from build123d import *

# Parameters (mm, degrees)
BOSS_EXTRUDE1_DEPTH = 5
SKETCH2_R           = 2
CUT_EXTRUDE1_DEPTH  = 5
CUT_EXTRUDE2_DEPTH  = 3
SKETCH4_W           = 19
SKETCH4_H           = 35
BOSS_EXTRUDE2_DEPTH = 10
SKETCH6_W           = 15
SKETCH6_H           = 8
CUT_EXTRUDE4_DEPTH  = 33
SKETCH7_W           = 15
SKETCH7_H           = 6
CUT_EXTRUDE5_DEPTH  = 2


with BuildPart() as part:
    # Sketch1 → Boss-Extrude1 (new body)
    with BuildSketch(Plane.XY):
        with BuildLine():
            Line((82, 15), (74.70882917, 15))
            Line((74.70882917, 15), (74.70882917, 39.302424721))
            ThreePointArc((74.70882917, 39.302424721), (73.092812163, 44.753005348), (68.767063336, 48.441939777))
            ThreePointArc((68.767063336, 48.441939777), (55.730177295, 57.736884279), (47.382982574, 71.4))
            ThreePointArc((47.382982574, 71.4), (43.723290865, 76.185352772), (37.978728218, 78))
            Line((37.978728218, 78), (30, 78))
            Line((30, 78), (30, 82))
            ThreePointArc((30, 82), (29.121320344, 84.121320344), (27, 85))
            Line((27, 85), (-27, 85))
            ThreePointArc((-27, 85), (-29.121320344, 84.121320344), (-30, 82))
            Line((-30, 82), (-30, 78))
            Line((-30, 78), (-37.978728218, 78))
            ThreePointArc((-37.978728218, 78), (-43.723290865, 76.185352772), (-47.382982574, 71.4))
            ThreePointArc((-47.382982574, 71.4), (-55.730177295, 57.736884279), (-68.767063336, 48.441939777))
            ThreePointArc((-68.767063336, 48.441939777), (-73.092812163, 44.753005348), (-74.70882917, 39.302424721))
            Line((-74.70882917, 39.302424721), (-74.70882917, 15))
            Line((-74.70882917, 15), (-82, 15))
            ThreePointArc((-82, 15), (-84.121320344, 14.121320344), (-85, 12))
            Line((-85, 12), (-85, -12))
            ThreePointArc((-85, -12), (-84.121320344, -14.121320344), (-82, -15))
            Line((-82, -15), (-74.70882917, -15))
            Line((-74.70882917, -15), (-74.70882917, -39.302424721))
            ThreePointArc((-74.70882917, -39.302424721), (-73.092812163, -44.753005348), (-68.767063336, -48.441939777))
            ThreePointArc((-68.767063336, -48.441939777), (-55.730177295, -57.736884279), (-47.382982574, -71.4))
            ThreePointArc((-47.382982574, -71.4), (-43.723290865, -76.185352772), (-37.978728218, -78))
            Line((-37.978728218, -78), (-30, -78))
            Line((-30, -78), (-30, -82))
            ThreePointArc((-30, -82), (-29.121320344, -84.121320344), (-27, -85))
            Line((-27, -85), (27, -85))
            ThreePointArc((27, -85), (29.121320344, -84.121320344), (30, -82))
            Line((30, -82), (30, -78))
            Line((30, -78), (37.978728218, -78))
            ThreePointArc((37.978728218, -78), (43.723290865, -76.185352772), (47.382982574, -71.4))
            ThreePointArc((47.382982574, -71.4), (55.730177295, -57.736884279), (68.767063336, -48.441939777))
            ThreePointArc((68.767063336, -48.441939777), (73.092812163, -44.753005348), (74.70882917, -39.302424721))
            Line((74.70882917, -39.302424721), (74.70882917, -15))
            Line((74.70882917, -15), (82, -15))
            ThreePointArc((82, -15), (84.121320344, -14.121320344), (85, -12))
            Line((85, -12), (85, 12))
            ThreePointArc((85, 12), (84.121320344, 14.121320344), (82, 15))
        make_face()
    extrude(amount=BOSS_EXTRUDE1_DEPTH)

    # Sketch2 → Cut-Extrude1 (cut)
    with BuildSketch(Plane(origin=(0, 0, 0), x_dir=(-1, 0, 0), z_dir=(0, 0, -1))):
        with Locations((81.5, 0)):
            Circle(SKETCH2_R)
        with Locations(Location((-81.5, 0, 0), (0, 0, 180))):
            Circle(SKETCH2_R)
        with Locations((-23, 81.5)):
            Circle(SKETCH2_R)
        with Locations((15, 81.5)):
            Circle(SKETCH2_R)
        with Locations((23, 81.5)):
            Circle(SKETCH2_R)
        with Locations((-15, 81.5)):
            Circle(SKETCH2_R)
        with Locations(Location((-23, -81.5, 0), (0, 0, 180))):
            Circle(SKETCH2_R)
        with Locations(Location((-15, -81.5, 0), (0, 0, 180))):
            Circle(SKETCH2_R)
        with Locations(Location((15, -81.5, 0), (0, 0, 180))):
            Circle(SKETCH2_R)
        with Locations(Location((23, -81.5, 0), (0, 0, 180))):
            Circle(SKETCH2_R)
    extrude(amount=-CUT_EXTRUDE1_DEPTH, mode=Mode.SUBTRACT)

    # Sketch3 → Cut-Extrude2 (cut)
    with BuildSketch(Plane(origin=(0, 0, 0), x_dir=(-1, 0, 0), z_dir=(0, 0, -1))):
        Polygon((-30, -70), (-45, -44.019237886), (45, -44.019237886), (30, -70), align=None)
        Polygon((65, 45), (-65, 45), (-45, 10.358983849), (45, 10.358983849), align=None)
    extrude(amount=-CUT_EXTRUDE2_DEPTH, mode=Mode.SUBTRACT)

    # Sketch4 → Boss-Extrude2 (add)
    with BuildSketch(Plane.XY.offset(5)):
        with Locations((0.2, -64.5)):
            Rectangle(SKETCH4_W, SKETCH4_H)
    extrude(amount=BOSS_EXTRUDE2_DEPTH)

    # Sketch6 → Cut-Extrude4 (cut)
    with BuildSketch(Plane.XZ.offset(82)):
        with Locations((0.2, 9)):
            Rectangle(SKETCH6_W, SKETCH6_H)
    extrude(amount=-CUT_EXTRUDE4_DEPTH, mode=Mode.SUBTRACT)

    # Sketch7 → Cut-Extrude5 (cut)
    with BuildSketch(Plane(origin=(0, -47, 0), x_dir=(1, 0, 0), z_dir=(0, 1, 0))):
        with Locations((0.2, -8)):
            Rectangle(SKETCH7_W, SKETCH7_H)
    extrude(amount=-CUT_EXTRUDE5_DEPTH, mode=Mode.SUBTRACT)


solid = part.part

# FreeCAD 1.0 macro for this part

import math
import FreeCAD as App
import Part
import Sketcher
from FreeCAD import Vector
Q = App.Units.Quantity

doc = App.newDocument("Part")
body = doc.addObject("PartDesign::Body", "Body")

sketch1 = body.newObject("Sketcher::SketchObject", "Sketch")
sketch1.AttachmentSupport = (doc.getObject("XY_Plane"), [""])
sketch1.MapMode = "FlatFace"
sketch1.addGeometry([
    Part.LineSegment(Vector(82, 15, 0), Vector(74.7, 15, 0)),
    Part.LineSegment(Vector(74.7, 15, 0), Vector(74.7, 39.3, 0)),
    Part.ArcOfCircle(Part.Circle(Vector(64.7, 39.3, 0), Vector(0, 0, 1), 10), math.radians(0), math.radians(66)),
    Part.ArcOfCircle(Part.Circle(Vector(85, 85, 0), Vector(0, 0, 1), 40), math.radians(-160), math.radians(-114)),
    Part.ArcOfCircle(Part.Circle(Vector(38, 68, 0), Vector(0, 0, 1), 10), math.radians(20), math.radians(90)),
    Part.LineSegment(Vector(38, 78, 0), Vector(30, 78, 0)),
    Part.LineSegment(Vector(30, 78, 0), Vector(30, 82, 0)),
    Part.ArcOfCircle(Part.Circle(Vector(27, 82, 0), Vector(0, 0, 1), 3), math.radians(0), math.radians(90)),
    Part.LineSegment(Vector(27, 85, 0), Vector(-27, 85, 0)),
    Part.ArcOfCircle(Part.Circle(Vector(-27, 82, 0), Vector(0, 0, 1), 3), math.radians(90), math.radians(180)),
    Part.LineSegment(Vector(-30, 82, 0), Vector(-30, 78, 0)),
    Part.LineSegment(Vector(-30, 78, 0), Vector(-38, 78, 0)),
    Part.ArcOfCircle(Part.Circle(Vector(-38, 68, 0), Vector(0, 0, 1), 10), math.radians(90), math.radians(160)),
    Part.ArcOfCircle(Part.Circle(Vector(-85, 85, 0), Vector(0, 0, 1), 40), math.radians(-66), math.radians(-20)),
    Part.ArcOfCircle(Part.Circle(Vector(-64.7, 39.3, 0), Vector(0, 0, 1), 10), math.radians(114), math.radians(180)),
    Part.LineSegment(Vector(-74.7, 39.3, 0), Vector(-74.7, 15, 0)),
    Part.LineSegment(Vector(-74.7, 15, 0), Vector(-82, 15, 0)),
    Part.ArcOfCircle(Part.Circle(Vector(-82, 12, 0), Vector(0, 0, 1), 3), math.radians(90), math.radians(180)),
    Part.LineSegment(Vector(-85, 12, 0), Vector(-85, -12, 0)),
    Part.ArcOfCircle(Part.Circle(Vector(-82, -12, 0), Vector(0, 0, 1), 3), math.radians(180), math.radians(270)),
    Part.LineSegment(Vector(-82, -15, 0), Vector(-74.7, -15, 0)),
    Part.LineSegment(Vector(-74.7, -15, 0), Vector(-74.7, -39.3, 0)),
    Part.ArcOfCircle(Part.Circle(Vector(-64.7, -39.3, 0), Vector(0, 0, 1), 10), math.radians(-180), math.radians(-114)),
    Part.ArcOfCircle(Part.Circle(Vector(-85, -85, 0), Vector(0, 0, 1), 40), math.radians(20), math.radians(66)),
    Part.ArcOfCircle(Part.Circle(Vector(-38, -68, 0), Vector(0, 0, 1), 10), math.radians(-160), math.radians(-90)),
    Part.LineSegment(Vector(-38, -78, 0), Vector(-30, -78, 0)),
    Part.LineSegment(Vector(-30, -78, 0), Vector(-30, -82, 0)),
    Part.ArcOfCircle(Part.Circle(Vector(-27, -82, 0), Vector(0, 0, 1), 3), math.radians(180), math.radians(270)),
    Part.LineSegment(Vector(-27, -85, 0), Vector(27, -85, 0)),
    Part.ArcOfCircle(Part.Circle(Vector(27, -82, 0), Vector(0, 0, 1), 3), math.radians(-90), math.radians(0)),
    Part.LineSegment(Vector(30, -82, 0), Vector(30, -78, 0)),
    Part.LineSegment(Vector(30, -78, 0), Vector(38, -78, 0)),
    Part.ArcOfCircle(Part.Circle(Vector(38, -68, 0), Vector(0, 0, 1), 10), math.radians(-90), math.radians(-20)),
    Part.ArcOfCircle(Part.Circle(Vector(85, -85, 0), Vector(0, 0, 1), 40), math.radians(114), math.radians(160)),
    Part.ArcOfCircle(Part.Circle(Vector(64.7, -39.3, 0), Vector(0, 0, 1), 10), math.radians(-66), math.radians(0)),
    Part.LineSegment(Vector(74.7, -39.3, 0), Vector(74.7, -15, 0)),
    Part.LineSegment(Vector(74.7, -15, 0), Vector(82, -15, 0)),
    Part.ArcOfCircle(Part.Circle(Vector(82, -12, 0), Vector(0, 0, 1), 3), math.radians(-90), math.radians(0)),
    Part.LineSegment(Vector(85, -12, 0), Vector(85, 12, 0)),
    Part.ArcOfCircle(Part.Circle(Vector(82, 12, 0), Vector(0, 0, 1), 3), math.radians(0), math.radians(90)),
], False)
sketch1.addConstraint([
    Sketcher.Constraint("Coincident", 0, 2, 1, 1),
    Sketcher.Constraint("Tangent", 1, 2, 2, 1),
    Sketcher.Constraint("Tangent", 2, 2, 3, 2),
    Sketcher.Constraint("Tangent", 3, 1, 4, 1),
    Sketcher.Constraint("Tangent", 4, 2, 5, 1),
    Sketcher.Constraint("Coincident", 5, 2, 6, 1),
    Sketcher.Constraint("Tangent", 6, 2, 7, 1),
    Sketcher.Constraint("Tangent", 7, 2, 8, 1),
    Sketcher.Constraint("Tangent", 8, 2, 9, 1),
    Sketcher.Constraint("Tangent", 9, 2, 10, 1),
    Sketcher.Constraint("Coincident", 10, 2, 11, 1),
    Sketcher.Constraint("Tangent", 11, 2, 12, 1),
    Sketcher.Constraint("Tangent", 12, 2, 13, 2),
    Sketcher.Constraint("Tangent", 13, 1, 14, 1),
    Sketcher.Constraint("Tangent", 14, 2, 15, 1),
    Sketcher.Constraint("Coincident", 15, 2, 16, 1),
    Sketcher.Constraint("Tangent", 16, 2, 17, 1),
    Sketcher.Constraint("Tangent", 17, 2, 18, 1),
    Sketcher.Constraint("Tangent", 18, 2, 19, 1),
    Sketcher.Constraint("Tangent", 19, 2, 20, 1),
    Sketcher.Constraint("Coincident", 20, 2, 21, 1),
    Sketcher.Constraint("Tangent", 21, 2, 22, 1),
    Sketcher.Constraint("Tangent", 22, 2, 23, 2),
    Sketcher.Constraint("Tangent", 23, 1, 24, 1),
    Sketcher.Constraint("Tangent", 24, 2, 25, 1),
    Sketcher.Constraint("Coincident", 25, 2, 26, 1),
    Sketcher.Constraint("Tangent", 26, 2, 27, 1),
    Sketcher.Constraint("Tangent", 27, 2, 28, 1),
    Sketcher.Constraint("Tangent", 28, 2, 29, 1),
    Sketcher.Constraint("Tangent", 29, 2, 30, 1),
    Sketcher.Constraint("Coincident", 30, 2, 31, 1),
    Sketcher.Constraint("Tangent", 31, 2, 32, 1),
    Sketcher.Constraint("Tangent", 32, 2, 33, 2),
    Sketcher.Constraint("Tangent", 33, 1, 34, 1),
    Sketcher.Constraint("Tangent", 34, 2, 35, 1),
    Sketcher.Constraint("Coincident", 35, 2, 36, 1),
    Sketcher.Constraint("Tangent", 36, 2, 37, 1),
    Sketcher.Constraint("Tangent", 37, 2, 38, 1),
    Sketcher.Constraint("Tangent", 38, 2, 39, 1),
    Sketcher.Constraint("Tangent", 39, 2, 0, 1),
    Sketcher.Constraint("Horizontal", 0),
    Sketcher.Constraint("Vertical", 1),
    Sketcher.Constraint("Horizontal", 5),
    Sketcher.Constraint("Vertical", 6),
    Sketcher.Constraint("Horizontal", 8),
    Sketcher.Constraint("Vertical", 10),
    Sketcher.Constraint("Horizontal", 11),
    Sketcher.Constraint("Vertical", 15),
    Sketcher.Constraint("Horizontal", 16),
    Sketcher.Constraint("Vertical", 18),
    Sketcher.Constraint("Horizontal", 20),
    Sketcher.Constraint("Vertical", 21),
    Sketcher.Constraint("Horizontal", 25),
    Sketcher.Constraint("Vertical", 26),
    Sketcher.Constraint("Horizontal", 28),
    Sketcher.Constraint("Vertical", 30),
    Sketcher.Constraint("Horizontal", 31),
    Sketcher.Constraint("Vertical", 35),
    Sketcher.Constraint("Horizontal", 36),
    Sketcher.Constraint("Vertical", 38),
    Sketcher.Constraint("Equal", 2, 4),
    Sketcher.Constraint("Equal", 7, 9),
    Sketcher.Constraint("Equal", 4, 12),
    Sketcher.Constraint("Equal", 3, 13),
    Sketcher.Constraint("Equal", 12, 14),
    Sketcher.Constraint("Equal", 9, 17),
    Sketcher.Constraint("Equal", 17, 19),
    Sketcher.Constraint("Equal", 14, 22),
    Sketcher.Constraint("Equal", 13, 23),
    Sketcher.Constraint("Equal", 22, 24),
    Sketcher.Constraint("Equal", 19, 27),
    Sketcher.Constraint("Equal", 27, 29),
    Sketcher.Constraint("Equal", 24, 32),
    Sketcher.Constraint("Equal", 23, 33),
    Sketcher.Constraint("Equal", 32, 34),
    Sketcher.Constraint("Equal", 29, 37),
    Sketcher.Constraint("Equal", 37, 39),
    Sketcher.Constraint("Symmetric", 2, 3, 22, 3, -1, 1),
    Sketcher.Constraint("Symmetric", 4, 3, 24, 3, -1, 1),
    Sketcher.Constraint("Symmetric", 7, 3, 27, 3, -1, 1),
    Sketcher.Constraint("Symmetric", 12, 3, 32, 3, -1, 1),
    Sketcher.Constraint("Symmetric", 14, 3, 34, 3, -1, 1),
    Sketcher.Constraint("Symmetric", 17, 3, 37, 3, -1, 1),
    Sketcher.Constraint("Symmetric", 4, 3, 12, 3, -2),
    Sketcher.Constraint("Symmetric", 2, 3, 14, 3, -2),
    Sketcher.Constraint("Horizontal", 19, 3, 37, 3),
    Sketcher.Constraint("Horizontal", 17, 3, 39, 3),
    Sketcher.Constraint("Horizontal", 13, 3, 7, 2),
    Sketcher.Constraint("Vertical", 9, 3, 27, 3),
    Sketcher.Constraint("Vertical", 7, 3, 29, 3),
    Sketcher.Constraint("Vertical", 23, 3, 17, 2),
    Sketcher.Constraint("Radius", 2, 10.0),
    Sketcher.Constraint("Radius", 3, 40.0),
    Sketcher.Constraint("Radius", 7, 3.0),
    Sketcher.Constraint("DistanceX", 8, 2, 8, 1, 54.0),
    Sketcher.Constraint("DistanceY", 6, 1, 6, 2, 4.0),
    Sketcher.Constraint("DistanceY", 18, 2, 18, 1, 24.0),
    Sketcher.Constraint("DistanceX", -1, 1, 3, 3, 85.0),
    Sketcher.Constraint("DistanceY", -1, 1, 3, 3, 85.0),
    Sketcher.Constraint("DistanceX", 0, 2, 0, 1, 7.291171),
])
pad1 = body.newObject("PartDesign::Pad", "Pad")
pad1.Profile = sketch1
pad1.Length = 5

sketch2 = body.newObject("Sketcher::SketchObject", "Sketch001")
sketch2.AttachmentSupport = (doc.getObject("XY_Plane"), [""])
sketch2.MapMode = "FlatFace"
sketch2.addGeometry([
    Part.Circle(Vector(-81.5, 0, 0), Vector(0, 0, 1), 2),
    Part.Circle(Vector(81.5, 0, 0), Vector(0, 0, 1), 2),
    Part.Circle(Vector(23, 81.5, 0), Vector(0, 0, 1), 2),
    Part.Circle(Vector(-15, 81.5, 0), Vector(0, 0, 1), 2),
    Part.Circle(Vector(-23, 81.5, 0), Vector(0, 0, 1), 2),
    Part.Circle(Vector(15, 81.5, 0), Vector(0, 0, 1), 2),
    Part.Circle(Vector(23, -81.5, 0), Vector(0, 0, 1), 2),
    Part.Circle(Vector(15, -81.5, 0), Vector(0, 0, 1), 2),
    Part.Circle(Vector(-15, -81.5, 0), Vector(0, 0, 1), 2),
    Part.Circle(Vector(-23, -81.5, 0), Vector(0, 0, 1), 2),
], False)
sketch2.addConstraint([
    Sketcher.Constraint("Equal", 0, 1),
    Sketcher.Constraint("Equal", 1, 2),
    Sketcher.Constraint("Equal", 2, 3),
    Sketcher.Constraint("Equal", 3, 4),
    Sketcher.Constraint("Equal", 4, 5),
    Sketcher.Constraint("Equal", 5, 6),
    Sketcher.Constraint("Equal", 6, 7),
    Sketcher.Constraint("Equal", 7, 8),
    Sketcher.Constraint("Equal", 8, 9),
    Sketcher.Constraint("Symmetric", 0, 3, 1, 3, -1, 1),
    Sketcher.Constraint("Symmetric", 4, 3, 6, 3, -1, 1),
    Sketcher.Constraint("Symmetric", 3, 3, 7, 3, -1, 1),
    Sketcher.Constraint("Symmetric", 5, 3, 8, 3, -1, 1),
    Sketcher.Constraint("Symmetric", 2, 3, 9, 3, -1, 1),
    Sketcher.Constraint("Symmetric", 2, 3, 4, 3, -2),
    Sketcher.Constraint("Symmetric", 3, 3, 5, 3, -2),
    Sketcher.Constraint("PointOnObject", 0, 3, -1),
    Sketcher.Constraint("Horizontal", 2, 3, 3, 3),
    Sketcher.Constraint("Diameter", 0, 4.0),
    Sketcher.Constraint("DistanceX", -1, 1, 2, 3, 23.0),
    Sketcher.Constraint("DistanceX", 3, 3, -1, 1, 15.0),
    Sketcher.Constraint("DistanceX", 0, 3, 1, 3, 163.0),
    Sketcher.Constraint("DistanceY", 6, 3, 2, 3, 163.0),
])
pocket1 = body.newObject("PartDesign::Pocket", "Pocket")
pocket1.Profile = sketch2
pocket1.Length = 5
pocket1.Reversed = True

sketch3 = body.newObject("Sketcher::SketchObject", "Sketch002")
sketch3.AttachmentSupport = (doc.getObject("XY_Plane"), [""])
sketch3.MapMode = "FlatFace"
sketch3.addGeometry([
    Part.LineSegment(Vector(45, -44, 0), Vector(30, -70, 0)),
    Part.LineSegment(Vector(30, -70, 0), Vector(-30, -70, 0)),
    Part.LineSegment(Vector(-30, -70, 0), Vector(-45, -44, 0)),
    Part.LineSegment(Vector(-45, -44, 0), Vector(45, -44, 0)),
    Part.LineSegment(Vector(-65, 45, 0), Vector(65, 45, 0)),
    Part.LineSegment(Vector(65, 45, 0), Vector(45, 10, 0)),
    Part.LineSegment(Vector(45, 10, 0), Vector(-45, 10, 0)),
    Part.LineSegment(Vector(-45, 10, 0), Vector(-65, 45, 0)),
], False)
sketch3.addConstraint([
    Sketcher.Constraint("Coincident", 0, 2, 1, 1),
    Sketcher.Constraint("Coincident", 1, 2, 2, 1),
    Sketcher.Constraint("Coincident", 2, 2, 3, 1),
    Sketcher.Constraint("Coincident", 3, 2, 0, 1),
    Sketcher.Constraint("Coincident", 4, 2, 5, 1),
    Sketcher.Constraint("Coincident", 5, 2, 6, 1),
    Sketcher.Constraint("Coincident", 6, 2, 7, 1),
    Sketcher.Constraint("Coincident", 7, 2, 4, 1),
    Sketcher.Constraint("Horizontal", 1),
    Sketcher.Constraint("Horizontal", 3),
    Sketcher.Constraint("Horizontal", 4),
    Sketcher.Constraint("Horizontal", 6),
    Sketcher.Constraint("Parallel", 0, 5),
    Sketcher.Constraint("Parallel", 2, 7),
    Sketcher.Constraint("Vertical", 3, 2, 5, 2),
    Sketcher.Constraint("Vertical", 2, 2, 6, 2),
    Sketcher.Constraint("Equal", 0, 2),
    Sketcher.Constraint("DistanceX", 1, 2, 1, 1, 60.0),
    Sketcher.Constraint("DistanceX", 3, 1, 3, 2, 90.0),
    Sketcher.Constraint("DistanceX", 4, 1, 4, 2, 130.0),
    Sketcher.Constraint("Angle", 0, Q("-120 deg")),
    Sketcher.Constraint("DistanceX", -1, 1, 0, 2, 30.0),
    Sketcher.Constraint("DistanceY", 0, 2, -1, 1, 70.0),
    Sketcher.Constraint("DistanceY", -1, 1, 4, 2, 45.0),
])
pocket2 = body.newObject("PartDesign::Pocket", "Pocket001")
pocket2.Profile = sketch3
pocket2.Length = 3
pocket2.Reversed = True

sketch4 = body.newObject("Sketcher::SketchObject", "Sketch003")
sketch4.AttachmentSupport = (doc.getObject("XY_Plane"), [""])
sketch4.MapMode = "FlatFace"
sketch4.AttachmentOffset = App.Placement(Vector(0, 0, 5), App.Rotation())
sketch4.addGeometry([
    Part.LineSegment(Vector(-9, -47, 0), Vector(-9, -82, 0)),
    Part.LineSegment(Vector(-9, -82, 0), Vector(10, -82, 0)),
    Part.LineSegment(Vector(10, -82, 0), Vector(10, -47, 0)),
    Part.LineSegment(Vector(10, -47, 0), Vector(-9, -47, 0)),
], False)
sketch4.addConstraint([
    Sketcher.Constraint("Coincident", 0, 2, 1, 1),
    Sketcher.Constraint("Coincident", 1, 2, 2, 1),
    Sketcher.Constraint("Coincident", 2, 2, 3, 1),
    Sketcher.Constraint("Coincident", 3, 2, 0, 1),
    Sketcher.Constraint("Vertical", 0),
    Sketcher.Constraint("Horizontal", 1),
    Sketcher.Constraint("Vertical", 2),
    Sketcher.Constraint("Horizontal", 3),
    Sketcher.Constraint("DistanceX", 1, 1, 1, 2, 19.0),
    Sketcher.Constraint("DistanceY", 0, 2, 0, 1, 35.0),
    Sketcher.Constraint("DistanceY", 0, 2, -1, 1, 82.0),
    Sketcher.Constraint("DistanceX", 0, 2, -1, 1, 9.3),
])
pad2 = body.newObject("PartDesign::Pad", "Pad001")
pad2.Profile = sketch4
pad2.Length = 10

sketch5 = body.newObject("Sketcher::SketchObject", "Sketch004")
sketch5.AttachmentSupport = (doc.getObject("XZ_Plane"), [""])
sketch5.MapMode = "FlatFace"
sketch5.AttachmentOffset = App.Placement(Vector(0, 0, 82), App.Rotation())
sketch5.addGeometry([
    Part.LineSegment(Vector(-7, 13, 0), Vector(-7, 5, 0)),
    Part.LineSegment(Vector(-7, 5, 0), Vector(8, 5, 0)),
    Part.LineSegment(Vector(8, 5, 0), Vector(8, 13, 0)),
    Part.LineSegment(Vector(8, 13, 0), Vector(-7, 13, 0)),
], False)
sketch5.addConstraint([
    Sketcher.Constraint("Coincident", 0, 2, 1, 1),
    Sketcher.Constraint("Coincident", 1, 2, 2, 1),
    Sketcher.Constraint("Coincident", 2, 2, 3, 1),
    Sketcher.Constraint("Coincident", 3, 2, 0, 1),
    Sketcher.Constraint("Vertical", 0),
    Sketcher.Constraint("Horizontal", 1),
    Sketcher.Constraint("Vertical", 2),
    Sketcher.Constraint("Horizontal", 3),
    Sketcher.Constraint("DistanceX", 1, 1, 1, 2, 15.0),
    Sketcher.Constraint("DistanceY", 0, 2, 0, 1, 8.0),
    Sketcher.Constraint("DistanceY", -1, 1, 0, 2, 5.0),
    Sketcher.Constraint("DistanceX", 0, 2, -1, 1, 7.3),
])
pocket3 = body.newObject("PartDesign::Pocket", "Pocket002")
pocket3.Profile = sketch5
pocket3.Length = 33

sketch6 = body.newObject("Sketcher::SketchObject", "Sketch005")
sketch6.AttachmentSupport = (doc.getObject("XZ_Plane"), [""])
sketch6.MapMode = "FlatFace"
sketch6.AttachmentOffset = App.Placement(Vector(0, 0, 47), App.Rotation())
sketch6.addGeometry([
    Part.LineSegment(Vector(-7, 5, 0), Vector(-7, 11, 0)),
    Part.LineSegment(Vector(-7, 11, 0), Vector(8, 11, 0)),
    Part.LineSegment(Vector(8, 11, 0), Vector(8, 5, 0)),
    Part.LineSegment(Vector(8, 5, 0), Vector(-7, 5, 0)),
], False)
sketch6.addConstraint([
    Sketcher.Constraint("Coincident", 0, 2, 1, 1),
    Sketcher.Constraint("Coincident", 1, 2, 2, 1),
    Sketcher.Constraint("Coincident", 2, 2, 3, 1),
    Sketcher.Constraint("Coincident", 3, 2, 0, 1),
    Sketcher.Constraint("Vertical", 0),
    Sketcher.Constraint("Horizontal", 1),
    Sketcher.Constraint("Vertical", 2),
    Sketcher.Constraint("Horizontal", 3),
    Sketcher.Constraint("DistanceX", 1, 1, 1, 2, 15.0),
    Sketcher.Constraint("DistanceY", 0, 1, 0, 2, 6.0),
    Sketcher.Constraint("DistanceY", -1, 1, 0, 2, 11.0),
    Sketcher.Constraint("DistanceX", 0, 2, -1, 1, 7.3),
])
pocket4 = body.newObject("PartDesign::Pocket", "Pocket003")
pocket4.Profile = sketch6
pocket4.Length = 2
pocket4.Reversed = True

doc.recompute()
